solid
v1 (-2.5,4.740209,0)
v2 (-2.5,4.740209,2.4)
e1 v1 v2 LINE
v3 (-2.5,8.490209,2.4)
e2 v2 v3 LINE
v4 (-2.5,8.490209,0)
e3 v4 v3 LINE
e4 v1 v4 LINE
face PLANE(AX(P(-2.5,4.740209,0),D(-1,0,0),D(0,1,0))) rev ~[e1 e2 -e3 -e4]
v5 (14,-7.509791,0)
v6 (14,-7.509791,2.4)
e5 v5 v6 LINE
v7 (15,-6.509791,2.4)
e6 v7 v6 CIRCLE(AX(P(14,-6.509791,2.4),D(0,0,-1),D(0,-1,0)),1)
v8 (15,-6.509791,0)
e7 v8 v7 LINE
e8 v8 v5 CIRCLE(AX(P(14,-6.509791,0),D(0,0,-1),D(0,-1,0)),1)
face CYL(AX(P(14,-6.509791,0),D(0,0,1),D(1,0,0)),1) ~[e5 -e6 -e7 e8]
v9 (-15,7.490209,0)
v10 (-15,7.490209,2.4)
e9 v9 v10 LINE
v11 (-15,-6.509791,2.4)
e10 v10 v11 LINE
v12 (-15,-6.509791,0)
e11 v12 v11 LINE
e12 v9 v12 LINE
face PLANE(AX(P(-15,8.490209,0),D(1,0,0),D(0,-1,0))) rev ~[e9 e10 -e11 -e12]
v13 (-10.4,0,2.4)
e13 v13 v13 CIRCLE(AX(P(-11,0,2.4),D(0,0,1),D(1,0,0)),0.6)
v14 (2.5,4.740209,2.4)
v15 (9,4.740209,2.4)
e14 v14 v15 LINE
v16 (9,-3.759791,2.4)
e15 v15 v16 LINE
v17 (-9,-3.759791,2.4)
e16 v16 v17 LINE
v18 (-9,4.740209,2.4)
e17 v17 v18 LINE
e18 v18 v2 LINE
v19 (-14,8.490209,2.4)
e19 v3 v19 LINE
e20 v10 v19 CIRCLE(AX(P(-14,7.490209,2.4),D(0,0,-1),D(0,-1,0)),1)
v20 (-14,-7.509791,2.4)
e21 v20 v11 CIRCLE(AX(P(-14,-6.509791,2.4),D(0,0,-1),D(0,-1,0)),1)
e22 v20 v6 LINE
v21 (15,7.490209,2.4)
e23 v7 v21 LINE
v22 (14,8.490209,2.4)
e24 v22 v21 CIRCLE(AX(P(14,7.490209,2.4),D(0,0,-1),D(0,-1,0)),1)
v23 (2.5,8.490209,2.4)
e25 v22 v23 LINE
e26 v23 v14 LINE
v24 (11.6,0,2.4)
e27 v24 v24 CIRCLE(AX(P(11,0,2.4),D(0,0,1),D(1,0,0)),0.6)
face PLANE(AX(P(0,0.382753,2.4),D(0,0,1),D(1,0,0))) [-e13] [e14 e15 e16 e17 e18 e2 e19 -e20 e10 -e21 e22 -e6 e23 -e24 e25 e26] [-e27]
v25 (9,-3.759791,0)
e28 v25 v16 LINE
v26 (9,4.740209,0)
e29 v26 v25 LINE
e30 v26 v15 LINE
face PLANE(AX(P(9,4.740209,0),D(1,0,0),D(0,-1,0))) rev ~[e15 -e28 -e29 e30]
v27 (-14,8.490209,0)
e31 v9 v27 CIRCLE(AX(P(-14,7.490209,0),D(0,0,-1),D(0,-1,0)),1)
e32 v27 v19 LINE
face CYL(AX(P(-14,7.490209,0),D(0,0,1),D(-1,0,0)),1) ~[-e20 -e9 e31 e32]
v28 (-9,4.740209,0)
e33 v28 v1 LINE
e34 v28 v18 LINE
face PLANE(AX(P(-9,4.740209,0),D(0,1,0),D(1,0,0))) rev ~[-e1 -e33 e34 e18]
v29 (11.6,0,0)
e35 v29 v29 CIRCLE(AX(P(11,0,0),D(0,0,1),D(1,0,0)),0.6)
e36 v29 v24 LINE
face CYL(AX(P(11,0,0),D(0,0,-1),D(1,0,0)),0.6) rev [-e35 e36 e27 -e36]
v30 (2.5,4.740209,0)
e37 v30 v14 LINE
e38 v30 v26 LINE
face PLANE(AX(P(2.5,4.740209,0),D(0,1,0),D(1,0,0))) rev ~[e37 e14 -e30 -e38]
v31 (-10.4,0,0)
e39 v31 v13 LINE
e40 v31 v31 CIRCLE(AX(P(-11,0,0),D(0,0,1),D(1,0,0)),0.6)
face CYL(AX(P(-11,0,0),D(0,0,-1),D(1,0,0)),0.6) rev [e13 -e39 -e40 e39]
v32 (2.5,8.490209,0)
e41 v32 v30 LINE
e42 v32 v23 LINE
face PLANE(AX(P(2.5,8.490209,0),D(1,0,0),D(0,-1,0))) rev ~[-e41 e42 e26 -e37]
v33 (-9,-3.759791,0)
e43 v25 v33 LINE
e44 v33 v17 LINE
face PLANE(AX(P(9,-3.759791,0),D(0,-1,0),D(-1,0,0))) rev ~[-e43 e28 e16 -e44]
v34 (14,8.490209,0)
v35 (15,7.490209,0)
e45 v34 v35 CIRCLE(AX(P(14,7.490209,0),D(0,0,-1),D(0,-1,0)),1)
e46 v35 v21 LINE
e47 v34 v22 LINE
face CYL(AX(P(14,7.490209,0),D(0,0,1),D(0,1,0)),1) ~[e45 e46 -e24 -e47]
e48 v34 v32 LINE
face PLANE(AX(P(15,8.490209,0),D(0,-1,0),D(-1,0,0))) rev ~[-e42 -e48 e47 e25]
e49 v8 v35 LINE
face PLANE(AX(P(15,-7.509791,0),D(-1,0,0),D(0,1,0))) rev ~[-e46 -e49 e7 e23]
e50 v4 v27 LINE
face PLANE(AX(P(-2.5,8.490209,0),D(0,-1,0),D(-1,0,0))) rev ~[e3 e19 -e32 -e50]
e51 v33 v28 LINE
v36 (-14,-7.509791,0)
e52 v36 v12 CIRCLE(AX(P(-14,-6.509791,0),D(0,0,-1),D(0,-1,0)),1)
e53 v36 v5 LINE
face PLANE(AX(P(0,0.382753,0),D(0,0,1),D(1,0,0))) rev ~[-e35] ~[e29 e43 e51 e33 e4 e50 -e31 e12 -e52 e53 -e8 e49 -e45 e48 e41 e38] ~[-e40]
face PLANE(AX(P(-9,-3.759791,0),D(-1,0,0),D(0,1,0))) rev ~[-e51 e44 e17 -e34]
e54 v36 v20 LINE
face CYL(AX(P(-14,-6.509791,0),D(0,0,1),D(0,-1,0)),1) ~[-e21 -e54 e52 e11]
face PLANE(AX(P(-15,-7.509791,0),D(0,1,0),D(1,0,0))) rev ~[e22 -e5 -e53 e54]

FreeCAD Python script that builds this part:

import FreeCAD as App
import Part
import Sketcher

V = App.Vector


def edges_at(feature, points):
    """Names of the edges that pass closest to the given points."""
    edges = feature.Shape.Edges
    near = lambda p: min(range(len(edges)), key=lambda i: edges[i].distToShape(Part.Vertex(*p))[0])
    return sorted({f"Edge{near(p) + 1}" for p in points})


def add_polygon(sketch, points):
    """Adds a closed chain of lines whose ends are joined by coincident constraints."""
    first, n = sketch.GeometryCount, len(points)
    for a, b in zip(points, points[1:] + points[:1]):
        sketch.addGeometry(Part.LineSegment(App.Vector(*a, 0), App.Vector(*b, 0)), False)
    for i in range(n):
        sketch.addConstraint(Sketcher.Constraint("Coincident", first + i, 2, first + (i + 1) % n, 1))

doc = App.newDocument("Part")
params = doc.addObject("Spreadsheet::Sheet", "Params")
for row, (alias, value) in enumerate([
    ("sketch1_diameter", "1.2 mm"),
    ("sketch1_width", "18 mm"),
    ("sketch1_width2", "30 mm"),
    ("sketch1_height", "16 mm"),
    ("sketch1_width3", "6.5 mm"),
    ("pad1_length", "2.4 mm"),
    ("fillet_radius", "1 mm"),
], start=1):
    params.set(f"A{row}", alias)
    params.set(f"B{row}", "=" + value)
    params.setAlias(f"B{row}", alias)

body = doc.addObject("PartDesign::Body", "Body")

sketch1 = doc.addObject("Sketcher::SketchObject", "Sketch")
body.addObject(sketch1)
sketch1.AttachmentSupport = (doc.XY_Plane, [""])
sketch1.MapMode = "FlatFace"
add_polygon(sketch1, [(2.5, 8.5), (2.5, 4.7), (9, 4.7), (9, -3.8), (-9, -3.8), (-9, 4.7), (-2.5, 4.7), (-2.5, 8.5), (-15, 8.5), (-15, -7.5), (15, -7.5), (15, 8.5)])
sketch1.addGeometry(Part.Circle(V(-11, 0, 0), V(0, 0, 1), 0.6), False)
sketch1.addGeometry(Part.Circle(V(11, 0, 0), V(0, 0, 1), 0.6), False)
sketch1.addConstraint([
    Sketcher.Constraint("Vertical", 0),
    Sketcher.Constraint("Horizontal", 1),
    Sketcher.Constraint("Vertical", 2),
    Sketcher.Constraint("Horizontal", 3),
    Sketcher.Constraint("Vertical", 4),
    Sketcher.Constraint("Horizontal", 5),
    Sketcher.Constraint("Vertical", 6),
    Sketcher.Constraint("Horizontal", 7),
    Sketcher.Constraint("Vertical", 8),
    Sketcher.Constraint("Horizontal", 9),
    Sketcher.Constraint("Vertical", 10),
    Sketcher.Constraint("Horizontal", 11),
    Sketcher.Constraint("Equal", 12, 13),
    Sketcher.Constraint("Symmetric", 12, 3, 13, 3, -1, 1),
    Sketcher.Constraint("Symmetric", 1, 2, 4, 2, -2),
    Sketcher.Constraint("Symmetric", 7, 2, 10, 2, -2),
    Sketcher.Constraint("PointOnObject", 12, 3, -1),
    Sketcher.Constraint("Equal", 1, 5),
    Sketcher.Constraint("Diameter", 12, 1.2),
    Sketcher.Constraint("DistanceX", 3, 2, 3, 1, 18.0),
    Sketcher.Constraint("DistanceX", 9, 1, 9, 2, 30.0),
    Sketcher.Constraint("DistanceY", 8, 2, 8, 1, 16.0),
    Sketcher.Constraint("DistanceX", 1, 1, 1, 2, 6.5),
    Sketcher.Constraint("DistanceY", 2, 2, 2, 1, 8.5),
    Sketcher.Constraint("DistanceX", 12, 3, -1, 1, 11.0),
    Sketcher.Constraint("DistanceY", 0, 2, 0, 1, 3.75),
    Sketcher.Constraint("DistanceY", -1, 1, 0, 2, 4.740209),
])
sketch1.setExpression("Constraints[30]", "Params.sketch1_diameter")
sketch1.setExpression("Constraints[31]", "Params.sketch1_width")
sketch1.setExpression("Constraints[32]", "Params.sketch1_width2")
sketch1.setExpression("Constraints[33]", "Params.sketch1_height")
sketch1.setExpression("Constraints[34]", "Params.sketch1_width3")
pad1 = doc.addObject("PartDesign::Pad", "Pad")
body.addObject(pad1)
pad1.Profile = sketch1
pad1.setExpression("Length", "Params.pad1_length")
doc.recompute()

fillet = doc.addObject("PartDesign::Fillet", "Fillet")
body.addObject(fillet)
fillet.Base = (pad1, edges_at(pad1, [
    (15, 8.49, 1.2),
    (15, -7.51, 1.2),
    (-15, 8.49, 1.2),
    (-15, -7.51, 1.2),
]))
fillet.setExpression("Radius", "Params.fillet_radius")

doc.recompute()
